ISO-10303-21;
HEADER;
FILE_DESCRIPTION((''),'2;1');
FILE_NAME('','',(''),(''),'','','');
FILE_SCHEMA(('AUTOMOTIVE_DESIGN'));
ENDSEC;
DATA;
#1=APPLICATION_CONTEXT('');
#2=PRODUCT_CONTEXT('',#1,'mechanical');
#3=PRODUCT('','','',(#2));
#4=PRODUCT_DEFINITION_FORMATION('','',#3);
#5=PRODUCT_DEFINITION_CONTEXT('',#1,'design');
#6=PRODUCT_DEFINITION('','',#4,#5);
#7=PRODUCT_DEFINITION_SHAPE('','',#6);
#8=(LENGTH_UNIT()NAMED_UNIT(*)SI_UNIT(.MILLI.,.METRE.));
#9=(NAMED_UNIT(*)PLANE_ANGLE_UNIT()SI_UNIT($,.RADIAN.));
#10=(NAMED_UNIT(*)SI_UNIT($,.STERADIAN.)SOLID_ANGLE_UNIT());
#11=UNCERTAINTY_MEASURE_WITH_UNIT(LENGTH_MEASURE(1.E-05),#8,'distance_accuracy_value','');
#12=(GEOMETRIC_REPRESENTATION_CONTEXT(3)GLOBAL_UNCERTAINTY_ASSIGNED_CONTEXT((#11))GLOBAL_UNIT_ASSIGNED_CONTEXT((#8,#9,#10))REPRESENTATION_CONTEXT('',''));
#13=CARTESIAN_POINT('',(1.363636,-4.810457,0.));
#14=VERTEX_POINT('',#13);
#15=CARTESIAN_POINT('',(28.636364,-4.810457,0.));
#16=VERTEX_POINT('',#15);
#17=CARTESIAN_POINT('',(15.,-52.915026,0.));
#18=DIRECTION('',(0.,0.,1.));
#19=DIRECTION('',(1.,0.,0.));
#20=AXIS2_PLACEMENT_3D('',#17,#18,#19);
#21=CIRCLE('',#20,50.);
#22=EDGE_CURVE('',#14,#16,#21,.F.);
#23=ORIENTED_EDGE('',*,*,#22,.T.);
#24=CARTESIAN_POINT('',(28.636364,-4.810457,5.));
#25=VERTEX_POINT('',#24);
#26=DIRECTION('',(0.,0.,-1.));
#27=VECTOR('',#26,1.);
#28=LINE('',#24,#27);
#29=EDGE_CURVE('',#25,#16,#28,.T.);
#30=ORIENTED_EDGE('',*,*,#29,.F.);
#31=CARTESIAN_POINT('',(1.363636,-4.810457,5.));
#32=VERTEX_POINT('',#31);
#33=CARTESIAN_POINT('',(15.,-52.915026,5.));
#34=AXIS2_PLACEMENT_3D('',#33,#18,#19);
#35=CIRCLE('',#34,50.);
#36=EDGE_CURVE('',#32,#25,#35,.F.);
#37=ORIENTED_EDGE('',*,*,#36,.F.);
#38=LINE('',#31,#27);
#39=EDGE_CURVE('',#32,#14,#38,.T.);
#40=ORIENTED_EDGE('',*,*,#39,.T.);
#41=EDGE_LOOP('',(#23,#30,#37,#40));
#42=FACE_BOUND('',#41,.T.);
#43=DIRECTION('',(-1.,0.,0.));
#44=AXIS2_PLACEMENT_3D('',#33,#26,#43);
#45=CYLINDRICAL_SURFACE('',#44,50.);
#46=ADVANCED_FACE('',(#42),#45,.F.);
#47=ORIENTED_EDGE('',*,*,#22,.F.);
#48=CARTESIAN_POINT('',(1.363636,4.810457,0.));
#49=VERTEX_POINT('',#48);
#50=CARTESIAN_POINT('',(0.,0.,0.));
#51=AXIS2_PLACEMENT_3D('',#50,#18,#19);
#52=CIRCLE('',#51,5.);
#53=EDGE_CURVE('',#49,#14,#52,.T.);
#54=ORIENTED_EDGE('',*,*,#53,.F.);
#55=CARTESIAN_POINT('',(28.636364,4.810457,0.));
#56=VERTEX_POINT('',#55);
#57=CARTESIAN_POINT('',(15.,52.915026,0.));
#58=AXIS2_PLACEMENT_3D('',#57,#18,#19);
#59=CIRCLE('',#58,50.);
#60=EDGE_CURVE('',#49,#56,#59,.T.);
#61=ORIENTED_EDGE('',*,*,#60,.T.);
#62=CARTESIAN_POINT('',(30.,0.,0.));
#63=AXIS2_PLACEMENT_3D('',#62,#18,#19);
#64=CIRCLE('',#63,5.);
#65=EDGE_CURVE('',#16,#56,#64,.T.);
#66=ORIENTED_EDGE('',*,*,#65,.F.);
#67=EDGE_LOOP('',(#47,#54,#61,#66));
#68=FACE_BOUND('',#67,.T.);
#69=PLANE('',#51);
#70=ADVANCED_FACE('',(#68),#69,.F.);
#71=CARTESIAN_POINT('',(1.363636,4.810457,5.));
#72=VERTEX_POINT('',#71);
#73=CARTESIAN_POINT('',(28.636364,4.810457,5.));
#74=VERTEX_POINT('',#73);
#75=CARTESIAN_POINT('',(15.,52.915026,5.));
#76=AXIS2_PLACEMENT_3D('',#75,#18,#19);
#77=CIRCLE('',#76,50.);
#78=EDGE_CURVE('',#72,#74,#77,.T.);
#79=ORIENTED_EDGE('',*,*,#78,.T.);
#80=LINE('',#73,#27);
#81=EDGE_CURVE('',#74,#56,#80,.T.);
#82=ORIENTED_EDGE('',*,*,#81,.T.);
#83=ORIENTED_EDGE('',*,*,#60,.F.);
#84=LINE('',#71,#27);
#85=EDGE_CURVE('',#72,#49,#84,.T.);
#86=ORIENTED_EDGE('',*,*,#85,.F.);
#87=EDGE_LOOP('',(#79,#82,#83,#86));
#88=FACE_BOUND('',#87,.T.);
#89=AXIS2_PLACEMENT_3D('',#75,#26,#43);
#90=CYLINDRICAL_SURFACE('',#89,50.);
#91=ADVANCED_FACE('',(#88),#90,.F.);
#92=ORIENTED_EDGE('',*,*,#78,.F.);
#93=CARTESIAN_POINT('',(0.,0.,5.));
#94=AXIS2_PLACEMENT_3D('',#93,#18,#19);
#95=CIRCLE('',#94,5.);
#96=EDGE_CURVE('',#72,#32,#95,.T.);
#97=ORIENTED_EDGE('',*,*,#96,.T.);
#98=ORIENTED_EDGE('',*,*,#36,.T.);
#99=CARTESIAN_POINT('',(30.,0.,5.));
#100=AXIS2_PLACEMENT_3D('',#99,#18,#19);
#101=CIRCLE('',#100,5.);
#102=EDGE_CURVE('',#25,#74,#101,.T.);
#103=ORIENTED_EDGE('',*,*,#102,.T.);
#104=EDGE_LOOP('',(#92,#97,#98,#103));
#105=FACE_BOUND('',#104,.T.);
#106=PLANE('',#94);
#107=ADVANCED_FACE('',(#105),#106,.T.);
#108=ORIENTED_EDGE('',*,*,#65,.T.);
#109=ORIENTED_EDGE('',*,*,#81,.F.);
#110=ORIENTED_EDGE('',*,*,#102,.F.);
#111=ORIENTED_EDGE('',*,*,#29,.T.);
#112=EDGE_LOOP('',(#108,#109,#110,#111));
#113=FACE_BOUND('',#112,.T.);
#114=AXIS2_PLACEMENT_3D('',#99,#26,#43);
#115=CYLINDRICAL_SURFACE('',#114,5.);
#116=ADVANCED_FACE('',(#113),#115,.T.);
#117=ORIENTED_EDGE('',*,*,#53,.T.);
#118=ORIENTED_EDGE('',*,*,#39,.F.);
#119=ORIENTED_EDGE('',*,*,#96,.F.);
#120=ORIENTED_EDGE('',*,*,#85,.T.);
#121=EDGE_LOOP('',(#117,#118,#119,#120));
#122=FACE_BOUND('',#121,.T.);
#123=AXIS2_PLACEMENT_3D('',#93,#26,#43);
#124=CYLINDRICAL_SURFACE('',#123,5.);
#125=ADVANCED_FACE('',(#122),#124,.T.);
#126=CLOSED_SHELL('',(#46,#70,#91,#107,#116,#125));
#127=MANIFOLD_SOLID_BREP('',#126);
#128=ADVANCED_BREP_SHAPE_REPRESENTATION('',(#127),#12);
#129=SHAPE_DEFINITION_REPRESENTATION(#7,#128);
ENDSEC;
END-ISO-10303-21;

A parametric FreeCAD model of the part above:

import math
import FreeCAD as App
import Part
import Sketcher
from FreeCAD import Vector

doc = App.newDocument("Part")
params = doc.addObject("Spreadsheet::Sheet", "Params")
for row, (alias, value) in enumerate([
    ("sketch1_radius", "50 mm"),
    ("sketch1_radius2", "5 mm"),
    ("pad1_length", "5 mm"),
], start=1):
    params.set(f"A{row}", alias)
    params.set(f"B{row}", "=" + value)
    params.setAlias(f"B{row}", alias)

body = doc.addObject("PartDesign::Body", "Body")

# Sketch on XY plane
sketch1 = body.newObject("Sketcher::SketchObject", "Sketch")
sketch1.AttachmentSupport = (doc.getObject("XY_Plane"), [""])
sketch1.MapMode = "FlatFace"
sketch1.addGeometry(Part.ArcOfCircle(Part.Circle(Vector(15, 53, 0), Vector(0, 0, 1), 50), math.radians(-106), math.radians(-74)), False)
sketch1.addGeometry(Part.ArcOfCircle(Part.Circle(Vector(0, 0, 0), Vector(0, 0, 1), 5), math.radians(74), math.radians(286)), False)
sketch1.addGeometry(Part.ArcOfCircle(Part.Circle(Vector(15, -53, 0), Vector(0, 0, 1), 50), math.radians(74), math.radians(106)), False)
sketch1.addGeometry(Part.ArcOfCircle(Part.Circle(Vector(30, 0, 0), Vector(0, 0, 1), 5), math.radians(-106), math.radians(106)), False)
sketch1.addConstraint(Sketcher.Constraint("Tangent", 0, 1, 1, 1))
sketch1.addConstraint(Sketcher.Constraint("Tangent", 1, 2, 2, 2))
sketch1.addConstraint(Sketcher.Constraint("Tangent", 2, 1, 3, 1))
sketch1.addConstraint(Sketcher.Constraint("Tangent", 3, 2, 0, 2))
sketch1.addConstraint(Sketcher.Constraint("Coincident", 1, 3, -1, 1))
sketch1.addConstraint(Sketcher.Constraint("Equal", 0, 2))
sketch1.addConstraint(Sketcher.Constraint("Equal", 1, 3))
sketch1.addConstraint(Sketcher.Constraint("PointOnObject", 3, 3, -1))
sketch1.addConstraint(Sketcher.Constraint("Radius", 0, 50.0))
sketch1.addConstraint(Sketcher.Constraint("Radius", 1, 5.0))
sketch1.addConstraint(Sketcher.Constraint("DistanceX", -1, 1, 0, 3, 15.0))
sketch1.setExpression("Constraints[8]", "Params.sketch1_radius")
sketch1.setExpression("Constraints[9]", "Params.sketch1_radius2")
pad1 = body.newObject("PartDesign::Pad", "Pad")
pad1.Profile = sketch1
pad1.setExpression("Length", "Params.pad1_length")

doc.recompute()
